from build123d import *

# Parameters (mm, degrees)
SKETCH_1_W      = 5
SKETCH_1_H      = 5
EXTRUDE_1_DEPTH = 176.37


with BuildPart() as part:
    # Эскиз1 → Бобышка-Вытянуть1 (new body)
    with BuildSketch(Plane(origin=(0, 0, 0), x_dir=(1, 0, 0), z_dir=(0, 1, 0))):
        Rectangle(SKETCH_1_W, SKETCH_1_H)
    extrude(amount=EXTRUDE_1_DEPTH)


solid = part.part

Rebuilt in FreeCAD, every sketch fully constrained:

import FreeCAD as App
import Part
import Sketcher
from FreeCAD import Vector

doc = App.newDocument("Part")
params = doc.addObject("Spreadsheet::Sheet", "Params")
for row, (alias, value) in enumerate([
    ("sketch1_width", "5 mm"),
    ("pad1_length", "176.37 mm"),
], start=1):
    params.set(f"A{row}", alias)
    params.set(f"B{row}", "=" + value)
    params.setAlias(f"B{row}", alias)

body = doc.addObject("PartDesign::Body", "Body")

sketch1 = doc.addObject("Sketcher::SketchObject", "Sketch")
body.addObject(sketch1)
sketch1.AttachmentSupport = (doc.XZ_Plane, [""])
sketch1.MapMode = "FlatFace"
sketch1.addGeometry([
    Part.LineSegment(Vector(-2.5, -2.5, 0), Vector(-2.5, 2.5, 0)),
    Part.LineSegment(Vector(-2.5, 2.5, 0), Vector(2.5, 2.5, 0)),
    Part.LineSegment(Vector(2.5, 2.5, 0), Vector(2.5, -2.5, 0)),
    Part.LineSegment(Vector(2.5, -2.5, 0), Vector(-2.5, -2.5, 0)),
], False)
sketch1.addConstraint([
    Sketcher.Constraint("Coincident", 0, 2, 1, 1),
    Sketcher.Constraint("Coincident", 1, 2, 2, 1),
    Sketcher.Constraint("Coincident", 2, 2, 3, 1),
    Sketcher.Constraint("Coincident", 3, 2, 0, 1),
    Sketcher.Constraint("Vertical", 0),
    Sketcher.Constraint("Horizontal", 1),
    Sketcher.Constraint("Vertical", 2),
    Sketcher.Constraint("Horizontal", 3),
    Sketcher.Constraint("Symmetric", 0, 2, 2, 2, -1, 1),
    Sketcher.Constraint("Equal", 3, 0),
    Sketcher.Constraint("DistanceX", 1, 1, 1, 2, 5.0),
])
sketch1.setExpression("Constraints[10]", "Params.sketch1_width")
pad1 = doc.addObject("PartDesign::Pad", "Pad")
body.addObject(pad1)
pad1.Profile = sketch1
pad1.setExpression("Length", "Params.pad1_length")
pad1.Reversed = True

doc.recompute()
